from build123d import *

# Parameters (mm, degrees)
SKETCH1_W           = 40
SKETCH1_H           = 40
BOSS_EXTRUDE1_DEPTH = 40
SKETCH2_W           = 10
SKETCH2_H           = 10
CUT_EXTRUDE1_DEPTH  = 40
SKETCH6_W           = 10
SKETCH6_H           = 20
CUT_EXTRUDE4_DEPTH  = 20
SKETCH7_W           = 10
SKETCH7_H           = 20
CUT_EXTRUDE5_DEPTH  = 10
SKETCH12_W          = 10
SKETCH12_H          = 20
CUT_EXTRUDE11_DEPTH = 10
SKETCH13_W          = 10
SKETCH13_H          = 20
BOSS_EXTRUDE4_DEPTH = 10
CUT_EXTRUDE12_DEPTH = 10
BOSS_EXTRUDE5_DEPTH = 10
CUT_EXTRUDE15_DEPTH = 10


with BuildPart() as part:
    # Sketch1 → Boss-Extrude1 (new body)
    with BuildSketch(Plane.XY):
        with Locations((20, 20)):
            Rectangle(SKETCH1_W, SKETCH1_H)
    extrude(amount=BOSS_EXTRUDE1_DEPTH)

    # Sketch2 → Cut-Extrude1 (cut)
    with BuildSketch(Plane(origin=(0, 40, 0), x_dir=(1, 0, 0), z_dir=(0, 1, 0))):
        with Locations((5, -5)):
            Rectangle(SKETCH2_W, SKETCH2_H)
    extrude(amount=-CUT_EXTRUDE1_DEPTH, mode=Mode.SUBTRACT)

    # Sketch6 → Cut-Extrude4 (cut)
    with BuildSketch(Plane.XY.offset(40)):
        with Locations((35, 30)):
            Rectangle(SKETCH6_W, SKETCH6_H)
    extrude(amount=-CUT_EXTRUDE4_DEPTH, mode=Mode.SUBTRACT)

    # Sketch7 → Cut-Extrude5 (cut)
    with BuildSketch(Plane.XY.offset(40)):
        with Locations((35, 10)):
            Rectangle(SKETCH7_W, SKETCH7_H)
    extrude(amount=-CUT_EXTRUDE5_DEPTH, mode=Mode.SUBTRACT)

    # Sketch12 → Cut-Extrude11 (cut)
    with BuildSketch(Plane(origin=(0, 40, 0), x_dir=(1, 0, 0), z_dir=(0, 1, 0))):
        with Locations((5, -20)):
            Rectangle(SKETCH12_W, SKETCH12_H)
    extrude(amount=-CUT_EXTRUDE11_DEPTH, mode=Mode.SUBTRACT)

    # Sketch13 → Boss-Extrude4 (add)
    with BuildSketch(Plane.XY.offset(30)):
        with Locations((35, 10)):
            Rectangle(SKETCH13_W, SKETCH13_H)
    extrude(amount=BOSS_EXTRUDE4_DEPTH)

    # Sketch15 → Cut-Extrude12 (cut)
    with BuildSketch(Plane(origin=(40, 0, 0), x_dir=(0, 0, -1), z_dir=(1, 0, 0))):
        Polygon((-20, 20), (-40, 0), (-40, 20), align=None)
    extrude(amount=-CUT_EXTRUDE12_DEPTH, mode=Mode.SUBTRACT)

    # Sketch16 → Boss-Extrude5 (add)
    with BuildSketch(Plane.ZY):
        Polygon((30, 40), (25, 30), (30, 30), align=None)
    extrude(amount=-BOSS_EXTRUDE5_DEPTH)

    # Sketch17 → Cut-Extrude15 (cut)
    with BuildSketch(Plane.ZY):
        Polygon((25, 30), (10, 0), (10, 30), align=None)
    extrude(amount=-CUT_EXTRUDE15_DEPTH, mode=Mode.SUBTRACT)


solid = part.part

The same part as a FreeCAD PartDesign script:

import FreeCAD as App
import Part
import Sketcher
from FreeCAD import Vector


def add_polygon(sketch, points):
    """Adds a closed chain of lines whose ends are joined by coincident constraints."""
    first, n = sketch.GeometryCount, len(points)
    for a, b in zip(points, points[1:] + points[:1]):
        sketch.addGeometry(Part.LineSegment(App.Vector(*a, 0), App.Vector(*b, 0)), False)
    for i in range(n):
        sketch.addConstraint(Sketcher.Constraint("Coincident", first + i, 2, first + (i + 1) % n, 1))

doc = App.newDocument("Part")
body = doc.addObject("PartDesign::Body", "Body")

# Sketch on XY plane
sketch1 = body.newObject("Sketcher::SketchObject", "Sketch")
sketch1.AttachmentSupport = (doc.getObject("XY_Plane"), [""])
sketch1.MapMode = "FlatFace"
add_polygon(sketch1, [(0, 40), (0, 0), (40, 0), (40, 40)])  # lines 0-3
sketch1.addConstraint([
    Sketcher.Constraint("Vertical", 0),
    Sketcher.Constraint("Horizontal", 1),
    Sketcher.Constraint("Vertical", 2),
    Sketcher.Constraint("Horizontal", 3),
    Sketcher.Constraint("Coincident", 0, 2, -1, 1),
    Sketcher.Constraint("Equal", 3, 0),
    Sketcher.Constraint("DistanceX", 1, 1, 1, 2, 40.0),
])
pad1 = body.newObject("PartDesign::Pad", "Pad")
pad1.Profile = sketch1
pad1.Length = 40

# Sketch on XZ plane
sketch2 = body.newObject("Sketcher::SketchObject", "Sketch001")
sketch2.AttachmentSupport = (doc.getObject("XZ_Plane"), [""])
sketch2.MapMode = "FlatFace"
sketch2.AttachmentOffset = App.Placement(Vector(0, 0, -40), App.Rotation())
add_polygon(sketch2, [(0, 0), (0, 10), (10, 10), (10, 0)])  # lines 0-3
sketch2.addConstraint([
    Sketcher.Constraint("Vertical", 0),
    Sketcher.Constraint("Horizontal", 1),
    Sketcher.Constraint("Vertical", 2),
    Sketcher.Constraint("Horizontal", 3),
    Sketcher.Constraint("Coincident", 3, 2, -1, 1),
    Sketcher.Constraint("Equal", 3, 0),
    Sketcher.Constraint("DistanceX", 1, 1, 1, 2, 10.0),
])
pocket1 = body.newObject("PartDesign::Pocket", "Pocket")
pocket1.Profile = sketch2
pocket1.Length = 40
pocket1.Reversed = True

# Sketch on XY plane
sketch3 = body.newObject("Sketcher::SketchObject", "Sketch002")
sketch3.AttachmentSupport = (doc.getObject("XY_Plane"), [""])
sketch3.MapMode = "FlatFace"
sketch3.AttachmentOffset = App.Placement(Vector(0, 0, 40), App.Rotation())
add_polygon(sketch3, [(30, 40), (30, 20), (40, 20), (40, 40)])  # lines 0-3
sketch3.addConstraint([
    Sketcher.Constraint("Vertical", 0),
    Sketcher.Constraint("Horizontal", 1),
    Sketcher.Constraint("Vertical", 2),
    Sketcher.Constraint("Horizontal", 3),
    Sketcher.Constraint("DistanceX", 1, 1, 1, 2, 10.0),
    Sketcher.Constraint("DistanceY", 0, 2, 0, 1, 20.0),
    Sketcher.Constraint("DistanceX", -1, 1, 0, 2, 30.0),
    Sketcher.Constraint("DistanceY", -1, 1, 0, 2, 20.0),
])
pocket2 = body.newObject("PartDesign::Pocket", "Pocket001")
pocket2.Profile = sketch3
pocket2.Length = 20

# Sketch on XY plane
sketch4 = body.newObject("Sketcher::SketchObject", "Sketch003")
sketch4.AttachmentSupport = (doc.getObject("XY_Plane"), [""])
sketch4.MapMode = "FlatFace"
sketch4.AttachmentOffset = App.Placement(Vector(0, 0, 40), App.Rotation())
add_polygon(sketch4, [(30, 20), (30, 0), (40, 0), (40, 20)])  # lines 0-3
sketch4.addConstraint([
    Sketcher.Constraint("Vertical", 0),
    Sketcher.Constraint("Horizontal", 1),
    Sketcher.Constraint("Vertical", 2),
    Sketcher.Constraint("Horizontal", 3),
    Sketcher.Constraint("PointOnObject", 0, 2, -1),
    Sketcher.Constraint("DistanceX", 1, 1, 1, 2, 10.0),
    Sketcher.Constraint("DistanceY", 0, 2, 0, 1, 20.0),
    Sketcher.Constraint("DistanceX", -1, 1, 0, 2, 30.0),
])
pocket3 = body.newObject("PartDesign::Pocket", "Pocket002")
pocket3.Profile = sketch4
pocket3.Length = 10

# Sketch on XZ plane
sketch5 = body.newObject("Sketcher::SketchObject", "Sketch004")
sketch5.AttachmentSupport = (doc.getObject("XZ_Plane"), [""])
sketch5.MapMode = "FlatFace"
sketch5.AttachmentOffset = App.Placement(Vector(0, 0, -40), App.Rotation())
add_polygon(sketch5, [(0, 10), (0, 30), (10, 30), (10, 10)])  # lines 0-3
sketch5.addConstraint([
    Sketcher.Constraint("Vertical", 0),
    Sketcher.Constraint("Horizontal", 1),
    Sketcher.Constraint("Vertical", 2),
    Sketcher.Constraint("Horizontal", 3),
    Sketcher.Constraint("PointOnObject", 0, 2, -2),
    Sketcher.Constraint("DistanceX", 1, 1, 1, 2, 10.0),
    Sketcher.Constraint("DistanceY", 0, 1, 0, 2, 20.0),
    Sketcher.Constraint("DistanceY", -1, 1, 0, 2, 30.0),
])
pocket4 = body.newObject("PartDesign::Pocket", "Pocket003")
pocket4.Profile = sketch5
pocket4.Length = 10
pocket4.Reversed = True

# Sketch on XY plane
sketch6 = body.newObject("Sketcher::SketchObject", "Sketch005")
sketch6.AttachmentSupport = (doc.getObject("XY_Plane"), [""])
sketch6.MapMode = "FlatFace"
sketch6.AttachmentOffset = App.Placement(Vector(0, 0, 30), App.Rotation())
add_polygon(sketch6, [(30, 20), (30, 0), (40, 0), (40, 20)])  # lines 0-3
sketch6.addConstraint([
    Sketcher.Constraint("Vertical", 0),
    Sketcher.Constraint("Horizontal", 1),
    Sketcher.Constraint("Vertical", 2),
    Sketcher.Constraint("Horizontal", 3),
    Sketcher.Constraint("PointOnObject", 0, 2, -1),
    Sketcher.Constraint("DistanceX", 1, 1, 1, 2, 10.0),
    Sketcher.Constraint("DistanceY", 0, 2, 0, 1, 20.0),
    Sketcher.Constraint("DistanceX", -1, 1, 0, 2, 30.0),
])
pad2 = body.newObject("PartDesign::Pad", "Pad001")
pad2.Profile = sketch6
pad2.Length = 10

# Sketch on YZ plane
sketch7 = body.newObject("Sketcher::SketchObject", "Sketch006")
sketch7.AttachmentSupport = (doc.getObject("YZ_Plane"), [""])
sketch7.MapMode = "FlatFace"
sketch7.AttachmentOffset = App.Placement(Vector(0, 0, 40), App.Rotation())
add_polygon(sketch7, [(0, 40), (20, 20), (20, 40)])  # lines 0-2
sketch7.addConstraint([
    Sketcher.Constraint("Vertical", 1),
    Sketcher.Constraint("Horizontal", 2),
    Sketcher.Constraint("PointOnObject", 2, 2, -2),
    Sketcher.Constraint("Equal", 2, 1),
    Sketcher.Constraint("DistanceX", 2, 2, 2, 1, 20.0),
    Sketcher.Constraint("DistanceY", -1, 1, 0, 2, 20.0),
])
pocket5 = body.newObject("PartDesign::Pocket", "Pocket004")
pocket5.Profile = sketch7
pocket5.Length = 10

# Sketch on YZ plane
sketch8 = body.newObject("Sketcher::SketchObject", "Sketch007")
sketch8.AttachmentSupport = (doc.getObject("YZ_Plane"), [""])
sketch8.MapMode = "FlatFace"
add_polygon(sketch8, [(40, 30), (30, 25), (30, 30)])  # lines 0-2
sketch8.addConstraint([
    Sketcher.Constraint("Vertical", 1),
    Sketcher.Constraint("Horizontal", 2),
    Sketcher.Constraint("DistanceX", 2, 1, 2, 2, 10.0),
    Sketcher.Constraint("DistanceY", 1, 1, 1, 2, 5.0),
    Sketcher.Constraint("DistanceX", -1, 1, 0, 2, 30.0),
    Sketcher.Constraint("DistanceY", -1, 1, 0, 2, 25.0),
])
pad3 = body.newObject("PartDesign::Pad", "Pad002")
pad3.Profile = sketch8
pad3.Length = 10

# Sketch on YZ plane
sketch9 = body.newObject("Sketcher::SketchObject", "Sketch008")
sketch9.AttachmentSupport = (doc.getObject("YZ_Plane"), [""])
sketch9.MapMode = "FlatFace"
add_polygon(sketch9, [(0, 10), (30, 25), (30, 10)])  # lines 0-2
sketch9.addConstraint([
    Sketcher.Constraint("Vertical", 1),
    Sketcher.Constraint("Horizontal", 2),
    Sketcher.Constraint("PointOnObject", 2, 2, -2),
    Sketcher.Constraint("DistanceX", 2, 2, 2, 1, 30.0),
    Sketcher.Constraint("DistanceY", 1, 2, 1, 1, 15.0),
    Sketcher.Constraint("DistanceY", -1, 1, 0, 2, 25.0),
])
pocket6 = body.newObject("PartDesign::Pocket", "Pocket005")
pocket6.Profile = sketch9
pocket6.Length = 10
pocket6.Reversed = True

doc.recompute()
